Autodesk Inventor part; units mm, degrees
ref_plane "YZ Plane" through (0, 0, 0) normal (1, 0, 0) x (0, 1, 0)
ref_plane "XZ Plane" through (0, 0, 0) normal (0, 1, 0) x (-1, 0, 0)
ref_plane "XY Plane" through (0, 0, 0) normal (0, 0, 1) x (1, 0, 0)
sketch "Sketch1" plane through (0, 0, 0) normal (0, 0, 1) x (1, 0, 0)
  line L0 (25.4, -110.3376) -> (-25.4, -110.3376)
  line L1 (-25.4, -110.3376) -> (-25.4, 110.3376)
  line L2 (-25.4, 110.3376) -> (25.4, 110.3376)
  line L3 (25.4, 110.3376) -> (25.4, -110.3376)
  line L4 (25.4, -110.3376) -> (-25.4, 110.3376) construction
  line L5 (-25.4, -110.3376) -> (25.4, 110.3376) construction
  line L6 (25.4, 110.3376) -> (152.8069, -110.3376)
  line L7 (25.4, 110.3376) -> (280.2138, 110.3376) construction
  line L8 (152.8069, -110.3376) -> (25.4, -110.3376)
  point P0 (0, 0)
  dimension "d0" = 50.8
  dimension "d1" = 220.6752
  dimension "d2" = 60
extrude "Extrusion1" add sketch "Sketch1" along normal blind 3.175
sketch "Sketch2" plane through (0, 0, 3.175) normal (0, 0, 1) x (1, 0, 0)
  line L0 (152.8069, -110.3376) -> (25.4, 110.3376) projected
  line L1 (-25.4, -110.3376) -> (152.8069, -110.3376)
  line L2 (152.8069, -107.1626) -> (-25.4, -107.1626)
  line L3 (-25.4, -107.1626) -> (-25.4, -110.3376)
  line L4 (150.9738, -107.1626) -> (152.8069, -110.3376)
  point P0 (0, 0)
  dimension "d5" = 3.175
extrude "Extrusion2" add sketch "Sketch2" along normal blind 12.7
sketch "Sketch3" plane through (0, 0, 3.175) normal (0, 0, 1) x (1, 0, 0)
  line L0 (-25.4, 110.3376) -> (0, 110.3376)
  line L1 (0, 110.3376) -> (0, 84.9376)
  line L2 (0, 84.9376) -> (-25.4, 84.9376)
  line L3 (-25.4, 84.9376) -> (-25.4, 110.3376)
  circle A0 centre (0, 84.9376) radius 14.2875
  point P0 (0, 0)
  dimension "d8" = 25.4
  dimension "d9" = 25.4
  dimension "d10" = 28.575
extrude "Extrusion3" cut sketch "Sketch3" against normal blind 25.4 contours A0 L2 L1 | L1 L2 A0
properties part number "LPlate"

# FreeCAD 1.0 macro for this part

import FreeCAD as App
import Part
import Sketcher

V = App.Vector
Q = App.Units.Quantity


def add_polygon(sketch, points):
    """Adds a closed chain of lines whose ends are joined by coincident constraints."""
    first, n = sketch.GeometryCount, len(points)
    for a, b in zip(points, points[1:] + points[:1]):
        sketch.addGeometry(Part.LineSegment(App.Vector(*a, 0), App.Vector(*b, 0)), False)
    for i in range(n):
        sketch.addConstraint(Sketcher.Constraint("Coincident", first + i, 2, first + (i + 1) % n, 1))

doc = App.newDocument("Part")
body = doc.addObject("PartDesign::Body", "Body")

# Sketch on XY plane
sketch1 = doc.addObject("Sketcher::SketchObject", "Sketch")
body.addObject(sketch1)
sketch1.AttachmentSupport = (doc.XY_Plane, [""])
sketch1.MapMode = "FlatFace"
add_polygon(sketch1, [(-25, -110), (153, -110), (25, 110), (-25, 110)])  # lines 0-3
sketch1.addConstraint(Sketcher.Constraint("Horizontal", 0))
sketch1.addConstraint(Sketcher.Constraint("Horizontal", 2))
sketch1.addConstraint(Sketcher.Constraint("Vertical", 3))
sketch1.addConstraint(Sketcher.Constraint("Symmetric", 1, 2, 3, 2, -1, 1))
sketch1.addConstraint(Sketcher.Constraint("DistanceX", 2, 2, 2, 1, Q("2 in")))
sketch1.addConstraint(Sketcher.Constraint("DistanceY", 3, 2, 3, 1, Q("8.688 in")))
sketch1.addConstraint(Sketcher.Constraint("Angle", 1, Q("120 deg")))
pad1 = doc.addObject("PartDesign::Pad", "Pad")
body.addObject(pad1)
pad1.Profile = sketch1
pad1.Length = Q("0.125 in")

# Sketch on XY plane
sketch2 = doc.addObject("Sketcher::SketchObject", "Sketch001")
body.addObject(sketch2)
sketch2.AttachmentSupport = (doc.XY_Plane, [""])
sketch2.MapMode = "FlatFace"
sketch2.AttachmentOffset = App.Placement(V(0, 0, 0.125 * 25.4), App.Rotation())
add_polygon(sketch2, [(-25.4, -110.3), (152.8, -110.3), (151, -107.2), (-25.4, -107.2)])  # lines 0-3
sketch2.addConstraint(Sketcher.Constraint("Horizontal", 0))
sketch2.addConstraint(Sketcher.Constraint("Horizontal", 2))
sketch2.addConstraint(Sketcher.Constraint("Vertical", 3))
sketch2.addConstraint(Sketcher.Constraint("DistanceY", 3, 2, 3, 1, Q("0.125 in")))
sketch2.addConstraint(Sketcher.Constraint("DistanceX", 2, 2, -1, 1, Q("1 in")))
sketch2.addConstraint(Sketcher.Constraint("Angle", 1, Q("120 deg")))
sketch2.addConstraint(Sketcher.Constraint("DistanceY", 0, 2, -1, 1, Q("4.344 in")))
sketch2.addConstraint(Sketcher.Constraint("DistanceX", 0, 1, 0, 2, Q("178.207 mm")))
pad2 = doc.addObject("PartDesign::Pad", "Pad001")
body.addObject(pad2)
pad2.Profile = sketch2
pad2.Length = Q("0.5 in")

# Sketch on XY plane
sketch3 = doc.addObject("Sketcher::SketchObject", "Sketch002")
body.addObject(sketch3)
sketch3.AttachmentSupport = (doc.XY_Plane, [""])
sketch3.MapMode = "FlatFace"
sketch3.AttachmentOffset = App.Placement(V(0, 0, 0.125 * 25.4), App.Rotation())
sketch3.addGeometry(Part.Circle(V(0, 85, 0), V(0, 0, 1), 14), False)
sketch3.addConstraint(Sketcher.Constraint("PointOnObject", 0, 3, -2))
sketch3.addConstraint(Sketcher.Constraint("Diameter", 0, Q("1.125 in")))
sketch3.addConstraint(Sketcher.Constraint("DistanceY", -1, 1, 0, 3, Q("3.344 in")))
pocket1 = doc.addObject("PartDesign::Pocket", "Pocket")
body.addObject(pocket1)
pocket1.Profile = sketch3
pocket1.Length = Q("1 in")

doc.recompute()
